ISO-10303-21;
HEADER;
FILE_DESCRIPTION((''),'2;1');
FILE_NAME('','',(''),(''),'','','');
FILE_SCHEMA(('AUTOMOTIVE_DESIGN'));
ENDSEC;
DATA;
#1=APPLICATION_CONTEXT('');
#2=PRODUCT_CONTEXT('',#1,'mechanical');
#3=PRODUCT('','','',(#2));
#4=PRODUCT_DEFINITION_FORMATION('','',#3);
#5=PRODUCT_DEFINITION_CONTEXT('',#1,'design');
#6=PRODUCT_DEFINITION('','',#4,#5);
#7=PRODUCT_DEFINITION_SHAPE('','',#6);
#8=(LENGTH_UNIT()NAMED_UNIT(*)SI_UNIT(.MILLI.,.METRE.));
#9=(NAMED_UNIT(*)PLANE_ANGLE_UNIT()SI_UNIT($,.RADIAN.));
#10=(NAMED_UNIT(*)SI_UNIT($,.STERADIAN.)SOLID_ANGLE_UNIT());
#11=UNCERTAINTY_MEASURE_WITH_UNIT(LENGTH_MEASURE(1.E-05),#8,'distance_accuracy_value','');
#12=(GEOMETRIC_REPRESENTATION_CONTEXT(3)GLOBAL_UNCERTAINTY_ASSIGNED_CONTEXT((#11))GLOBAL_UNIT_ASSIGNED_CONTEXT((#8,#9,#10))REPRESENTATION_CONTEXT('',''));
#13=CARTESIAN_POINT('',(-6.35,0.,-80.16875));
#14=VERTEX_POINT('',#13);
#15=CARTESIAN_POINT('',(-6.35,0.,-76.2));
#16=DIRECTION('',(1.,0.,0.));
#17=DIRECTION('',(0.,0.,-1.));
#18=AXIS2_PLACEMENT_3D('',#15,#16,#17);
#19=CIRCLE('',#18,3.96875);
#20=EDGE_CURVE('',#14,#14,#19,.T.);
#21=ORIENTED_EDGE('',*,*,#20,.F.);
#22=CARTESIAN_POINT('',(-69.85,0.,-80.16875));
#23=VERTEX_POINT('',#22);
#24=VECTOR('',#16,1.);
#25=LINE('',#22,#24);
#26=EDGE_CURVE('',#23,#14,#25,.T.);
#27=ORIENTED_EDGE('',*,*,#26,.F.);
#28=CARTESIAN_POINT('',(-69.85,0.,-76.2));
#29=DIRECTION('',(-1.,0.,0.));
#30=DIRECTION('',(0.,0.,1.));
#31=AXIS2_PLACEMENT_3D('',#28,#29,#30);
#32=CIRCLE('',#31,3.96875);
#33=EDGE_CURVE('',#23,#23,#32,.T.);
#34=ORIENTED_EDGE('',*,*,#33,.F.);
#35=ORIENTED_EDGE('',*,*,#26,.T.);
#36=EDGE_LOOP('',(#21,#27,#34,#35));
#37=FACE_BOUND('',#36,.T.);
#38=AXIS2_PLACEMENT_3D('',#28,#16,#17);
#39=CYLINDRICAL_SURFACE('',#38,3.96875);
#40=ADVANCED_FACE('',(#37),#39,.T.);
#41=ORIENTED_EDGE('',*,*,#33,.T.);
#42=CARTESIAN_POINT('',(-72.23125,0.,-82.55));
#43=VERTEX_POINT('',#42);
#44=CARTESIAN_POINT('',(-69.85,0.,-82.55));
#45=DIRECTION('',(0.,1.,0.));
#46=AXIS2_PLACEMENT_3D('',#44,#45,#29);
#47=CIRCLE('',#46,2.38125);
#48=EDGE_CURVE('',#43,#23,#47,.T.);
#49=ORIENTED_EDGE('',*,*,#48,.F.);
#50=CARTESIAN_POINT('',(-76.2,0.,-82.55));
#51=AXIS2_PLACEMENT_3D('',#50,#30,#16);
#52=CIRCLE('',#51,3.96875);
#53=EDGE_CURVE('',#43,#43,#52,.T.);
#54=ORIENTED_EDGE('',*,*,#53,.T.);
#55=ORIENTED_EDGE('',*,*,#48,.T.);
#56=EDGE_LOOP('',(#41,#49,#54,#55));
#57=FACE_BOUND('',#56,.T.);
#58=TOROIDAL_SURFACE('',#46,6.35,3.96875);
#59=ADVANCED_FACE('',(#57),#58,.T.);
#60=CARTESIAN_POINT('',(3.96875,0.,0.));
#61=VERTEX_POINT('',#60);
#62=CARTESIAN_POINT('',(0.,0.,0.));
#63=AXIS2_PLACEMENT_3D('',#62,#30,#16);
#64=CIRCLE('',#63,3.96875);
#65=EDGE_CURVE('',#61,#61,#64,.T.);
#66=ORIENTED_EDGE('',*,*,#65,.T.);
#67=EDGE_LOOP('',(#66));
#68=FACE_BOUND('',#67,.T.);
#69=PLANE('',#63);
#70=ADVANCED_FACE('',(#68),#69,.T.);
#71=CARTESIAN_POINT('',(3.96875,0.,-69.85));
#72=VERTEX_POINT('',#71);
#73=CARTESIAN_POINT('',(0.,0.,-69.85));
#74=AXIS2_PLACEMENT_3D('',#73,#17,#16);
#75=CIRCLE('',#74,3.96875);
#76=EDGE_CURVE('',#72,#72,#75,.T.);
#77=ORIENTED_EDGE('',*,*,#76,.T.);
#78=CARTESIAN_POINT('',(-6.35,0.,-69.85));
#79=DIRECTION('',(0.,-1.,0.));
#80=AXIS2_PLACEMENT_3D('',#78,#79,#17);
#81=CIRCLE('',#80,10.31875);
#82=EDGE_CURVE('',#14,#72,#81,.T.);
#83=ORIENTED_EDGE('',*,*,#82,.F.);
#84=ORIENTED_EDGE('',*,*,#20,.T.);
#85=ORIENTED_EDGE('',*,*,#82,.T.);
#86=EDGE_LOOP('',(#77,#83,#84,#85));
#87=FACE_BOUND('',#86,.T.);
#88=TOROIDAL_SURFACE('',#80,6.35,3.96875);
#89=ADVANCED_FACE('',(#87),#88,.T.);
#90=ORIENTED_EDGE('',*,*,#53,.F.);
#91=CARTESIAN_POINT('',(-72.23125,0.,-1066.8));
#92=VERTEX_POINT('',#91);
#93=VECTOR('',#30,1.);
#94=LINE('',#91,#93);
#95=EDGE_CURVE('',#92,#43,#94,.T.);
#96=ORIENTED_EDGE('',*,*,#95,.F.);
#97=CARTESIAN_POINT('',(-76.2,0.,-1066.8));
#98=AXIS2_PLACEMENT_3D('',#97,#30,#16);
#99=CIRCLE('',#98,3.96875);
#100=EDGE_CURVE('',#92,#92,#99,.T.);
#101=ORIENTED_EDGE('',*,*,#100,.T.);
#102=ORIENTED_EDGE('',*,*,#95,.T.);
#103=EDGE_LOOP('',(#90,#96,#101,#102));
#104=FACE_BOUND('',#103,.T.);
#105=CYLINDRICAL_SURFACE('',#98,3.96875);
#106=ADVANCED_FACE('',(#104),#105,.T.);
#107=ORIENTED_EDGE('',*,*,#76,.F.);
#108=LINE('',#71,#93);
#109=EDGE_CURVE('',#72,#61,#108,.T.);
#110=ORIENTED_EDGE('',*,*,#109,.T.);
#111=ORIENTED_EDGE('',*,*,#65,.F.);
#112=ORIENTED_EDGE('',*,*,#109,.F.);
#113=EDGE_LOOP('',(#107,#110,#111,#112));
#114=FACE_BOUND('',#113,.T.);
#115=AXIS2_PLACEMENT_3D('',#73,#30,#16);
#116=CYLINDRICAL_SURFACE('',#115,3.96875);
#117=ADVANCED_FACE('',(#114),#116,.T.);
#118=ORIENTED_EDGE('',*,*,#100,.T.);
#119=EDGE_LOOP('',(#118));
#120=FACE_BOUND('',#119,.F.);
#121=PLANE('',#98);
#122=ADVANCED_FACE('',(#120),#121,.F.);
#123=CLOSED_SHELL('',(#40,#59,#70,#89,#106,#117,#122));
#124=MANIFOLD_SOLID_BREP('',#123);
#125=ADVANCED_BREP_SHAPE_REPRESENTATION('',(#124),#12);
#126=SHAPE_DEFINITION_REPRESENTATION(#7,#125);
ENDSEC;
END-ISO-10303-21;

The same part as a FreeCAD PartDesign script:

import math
import FreeCAD as App
import Part
import Sketcher
Q = App.Units.Quantity

doc = App.newDocument("Part")
body = doc.addObject("PartDesign::Body", "Body")

sketch1 = body.newObject("Sketcher::SketchObject", "Sketch")
sketch1.AttachmentSupport = (doc.getObject("XY_Plane"), [""])
sketch1.MapMode = "FlatFace"
sketch1.addGeometry(Part.Circle(App.Vector(0, 0, 0), App.Vector(0, 0, 1), 4), False)
sketch1.addConstraint([
    Sketcher.Constraint("Coincident", 0, 3, -1, 1),
    Sketcher.Constraint("Diameter", 0, Q("0.3125 in")),
])

sketch2 = body.newObject("Sketcher::SketchObject", "Sketch001")
sketch2.AttachmentSupport = (doc.getObject("XZ_Plane"), [""])
sketch2.MapMode = "FlatFace"
sketch2.addGeometry([
    Part.LineSegment(App.Vector(-76, -1067, 0), App.Vector(-76, -83, 0)),
    Part.ArcOfCircle(Part.Circle(App.Vector(-70, -83, 0), App.Vector(0, 0, 1), 6), math.radians(90), math.radians(180)),
    Part.LineSegment(App.Vector(-70, -76, 0), App.Vector(-6, -76, 0)),
    Part.ArcOfCircle(Part.Circle(App.Vector(-6, -70, 0), App.Vector(0, 0, 1), 6), math.radians(-90), math.radians(0)),
    Part.LineSegment(App.Vector(0, -70, 0), App.Vector(0, 0, 0)),
], False)
sketch2.addConstraint([
    Sketcher.Constraint("Tangent", 0, 2, 1, 2),
    Sketcher.Constraint("Tangent", 1, 1, 2, 1),
    Sketcher.Constraint("Tangent", 2, 2, 3, 1),
    Sketcher.Constraint("Tangent", 3, 2, 4, 1),
    Sketcher.Constraint("Vertical", 0),
    Sketcher.Constraint("Horizontal", 2),
    Sketcher.Constraint("Vertical", 4),
    Sketcher.Constraint("Coincident", 4, 2, -1, 1),
    Sketcher.Constraint("Equal", 1, 3),
    Sketcher.Constraint("Radius", 1, Q("0.25 in")),
    Sketcher.Constraint("DistanceX", 2, 1, 2, 2, Q("2.5 in")),
    Sketcher.Constraint("DistanceY", 0, 1, -1, 1, Q("42 in")),
    Sketcher.Constraint("DistanceY", 1, 1, -1, 1, Q("3 in")),
])
doc.recompute()

additivepipe = body.newObject("PartDesign::AdditivePipe", "AdditivePipe")
additivepipe.Profile = sketch1
additivepipe.Spine = (sketch2, ["Edge1", "Edge2", "Edge3", "Edge4", "Edge5"])

doc.recompute()
